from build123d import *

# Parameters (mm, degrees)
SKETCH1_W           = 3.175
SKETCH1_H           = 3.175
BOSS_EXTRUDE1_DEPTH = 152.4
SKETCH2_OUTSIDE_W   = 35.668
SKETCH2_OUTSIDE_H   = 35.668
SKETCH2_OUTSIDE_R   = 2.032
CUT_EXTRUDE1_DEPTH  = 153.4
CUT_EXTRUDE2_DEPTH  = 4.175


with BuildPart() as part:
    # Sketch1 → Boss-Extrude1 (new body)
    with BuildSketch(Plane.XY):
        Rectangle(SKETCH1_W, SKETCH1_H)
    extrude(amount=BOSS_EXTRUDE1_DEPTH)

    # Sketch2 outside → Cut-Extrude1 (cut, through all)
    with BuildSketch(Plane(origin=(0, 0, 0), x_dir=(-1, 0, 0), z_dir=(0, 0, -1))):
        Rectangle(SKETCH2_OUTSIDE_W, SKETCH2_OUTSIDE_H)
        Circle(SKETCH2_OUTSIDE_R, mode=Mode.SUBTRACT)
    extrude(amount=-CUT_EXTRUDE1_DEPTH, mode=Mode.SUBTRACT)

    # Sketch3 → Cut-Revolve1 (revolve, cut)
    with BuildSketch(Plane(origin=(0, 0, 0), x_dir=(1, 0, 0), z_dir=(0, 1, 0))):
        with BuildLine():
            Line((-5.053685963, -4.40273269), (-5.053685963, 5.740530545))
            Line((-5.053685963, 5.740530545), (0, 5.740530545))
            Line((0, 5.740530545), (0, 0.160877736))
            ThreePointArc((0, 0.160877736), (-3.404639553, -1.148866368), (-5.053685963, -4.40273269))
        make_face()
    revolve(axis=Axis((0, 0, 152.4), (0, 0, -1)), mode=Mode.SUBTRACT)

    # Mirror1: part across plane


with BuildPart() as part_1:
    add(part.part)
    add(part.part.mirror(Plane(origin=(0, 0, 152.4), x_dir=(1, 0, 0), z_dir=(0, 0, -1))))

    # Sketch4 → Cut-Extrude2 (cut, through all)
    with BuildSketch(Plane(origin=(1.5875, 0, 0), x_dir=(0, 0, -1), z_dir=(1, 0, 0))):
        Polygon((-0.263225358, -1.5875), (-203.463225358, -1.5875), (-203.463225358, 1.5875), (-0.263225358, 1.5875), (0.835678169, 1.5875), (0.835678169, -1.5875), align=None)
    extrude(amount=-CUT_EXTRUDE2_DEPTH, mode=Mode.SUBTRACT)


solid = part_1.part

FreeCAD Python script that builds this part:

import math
import FreeCAD as App
import Part
import Sketcher

V = App.Vector
Q = App.Units.Quantity

doc = App.newDocument("Part")
body = doc.addObject("PartDesign::Body", "Body")

# Sketch on XY plane
sketch1 = doc.addObject("Sketcher::SketchObject", "Sketch")
body.addObject(sketch1)
sketch1.AttachmentSupport = (doc.XY_Plane, [""])
sketch1.MapMode = "FlatFace"
sketch1.addGeometry([
    Part.LineSegment(V(-1.6, 1.6, 0), V(-1.6, -1.6, 0)),
    Part.LineSegment(V(-1.6, -1.6, 0), V(1.6, -1.6, 0)),
    Part.LineSegment(V(1.6, -1.6, 0), V(1.6, 1.6, 0)),
    Part.LineSegment(V(1.6, 1.6, 0), V(-1.6, 1.6, 0)),
], False)
sketch1.addConstraint([
    Sketcher.Constraint("Coincident", 0, 2, 1, 1),
    Sketcher.Constraint("Coincident", 1, 2, 2, 1),
    Sketcher.Constraint("Coincident", 2, 2, 3, 1),
    Sketcher.Constraint("Coincident", 3, 2, 0, 1),
    Sketcher.Constraint("Vertical", 0),
    Sketcher.Constraint("Horizontal", 1),
    Sketcher.Constraint("Vertical", 2),
    Sketcher.Constraint("Horizontal", 3),
    Sketcher.Constraint("Symmetric", 0, 2, 2, 2, -1, 1),
    Sketcher.Constraint("Equal", 3, 0),
    Sketcher.Constraint("DistanceX", 1, 1, 1, 2, Q("0.125 in")),
])
pad1 = doc.addObject("PartDesign::Pad", "Pad")
body.addObject(pad1)
pad1.Profile = sketch1
pad1.Length = Q("6 in")

# Sketch on XY plane
sketch2 = doc.addObject("Sketcher::SketchObject", "Sketch001")
body.addObject(sketch2)
sketch2.AttachmentSupport = (doc.XY_Plane, [""])
sketch2.MapMode = "FlatFace"
sketch2.addGeometry([
    Part.LineSegment(V(17.8, 17.8, 0), V(17.8, -17.8, 0)),  # 0
    Part.LineSegment(V(17.8, -17.8, 0), V(-17.8, -17.8, 0)),  # 1
    Part.LineSegment(V(-17.8, -17.8, 0), V(-17.8, 17.8, 0)),  # 2
    Part.LineSegment(V(-17.8, 17.8, 0), V(17.8, 17.8, 0)),  # 3
    Part.Circle(V(0, 0, 0), V(0, 0, 1), 2),  # 4
], False)
sketch2.addConstraint([
    Sketcher.Constraint("Coincident", 0, 2, 1, 1),
    Sketcher.Constraint("Coincident", 1, 2, 2, 1),
    Sketcher.Constraint("Coincident", 2, 2, 3, 1),
    Sketcher.Constraint("Coincident", 3, 2, 0, 1),
    Sketcher.Constraint("Vertical", 0),
    Sketcher.Constraint("Horizontal", 1),
    Sketcher.Constraint("Vertical", 2),
    Sketcher.Constraint("Horizontal", 3),
    Sketcher.Constraint("Coincident", 4, 3, -1, 1),
    Sketcher.Constraint("Symmetric", 0, 2, 2, 2, -1, 1),
    Sketcher.Constraint("Equal", 3, 0),
    Sketcher.Constraint("Diameter", 4, Q("0.16 in")),
    Sketcher.Constraint("DistanceX", 1, 2, 1, 1, 35.668),
])
pocket1 = doc.addObject("PartDesign::Pocket", "Pocket")
body.addObject(pocket1)
pocket1.Profile = sketch2
pocket1.Type = "ThroughAll"
pocket1.Reversed = True

# Sketch on XZ plane
sketch3 = doc.addObject("Sketcher::SketchObject", "Sketch002")
body.addObject(sketch3)
sketch3.AttachmentSupport = (doc.XZ_Plane, [""])
sketch3.MapMode = "FlatFace"
sketch3.addGeometry([
    Part.LineSegment(V(-5, -6, 0), V(-5, 4, 0)),
    Part.ArcOfCircle(Part.Circle(V(0, 5, 0), V(0, 0, 1), 5), math.radians(-174), math.radians(-90)),
    Part.LineSegment(V(0, 0, 0), V(0, -6, 0)),
    Part.LineSegment(V(0, -6, 0), V(-5, -6, 0)),
], False)
sketch3.addConstraint([
    Sketcher.Constraint("Coincident", 0, 2, 1, 1),
    Sketcher.Constraint("Coincident", 1, 2, 2, 1),
    Sketcher.Constraint("Coincident", 2, 2, 3, 1),
    Sketcher.Constraint("Coincident", 3, 2, 0, 1),
    Sketcher.Constraint("Vertical", 0),
    Sketcher.Constraint("Vertical", 2),
    Sketcher.Constraint("Horizontal", 3),
    Sketcher.Constraint("PointOnObject", 1, 3, -2),
    Sketcher.Constraint("PointOnObject", 1, 2, -2),
    Sketcher.Constraint("Radius", 1, Q("0.2 in")),
    Sketcher.Constraint("DistanceX", 3, 2, 3, 1, 5.053686),
    Sketcher.Constraint("DistanceY", 0, 1, 0, 2, 10.143263),
    Sketcher.Constraint("DistanceY", 2, 2, -1, 1, 5.740531),
])
groove = doc.addObject("PartDesign::Groove", "Groove")
body.addObject(groove)
groove.Profile = sketch3
groove.ReferenceAxis = (sketch3, ["V_Axis"])
groove.Angle = 360
body2 = doc.addObject("PartDesign::Body", "Body001")
doc.recompute()

body2.BaseFeature = body
doc.recompute()

mirroring = doc.addObject("Part::Mirroring", "Mirroring")
mirroring.Source = body
mirroring.Base = V(0, 0, 152.4)
mirroring.Normal = V(0, 0, -1)
body3 = doc.addObject("PartDesign::Body", "Body002")
body3.BaseFeature = mirroring
boolean = doc.addObject("PartDesign::Boolean", "Boolean")
body2.addObject(boolean)
boolean.Type = "Fuse"
boolean.addObjects([body3])
doc.recompute()

# Sketch on YZ plane
sketch4 = doc.addObject("Sketcher::SketchObject", "Sketch003")
body2.addObject(sketch4)
sketch4.AttachmentSupport = (doc.getObject("YZ_Plane001"), [""])
sketch4.MapMode = "FlatFace"
sketch4.AttachmentOffset = App.Placement(V(0, 0, 0.0625 * 25.4), App.Rotation())
sketch4.addGeometry([
    Part.LineSegment(V(-1.6, 203.5, 0), V(-1.6, -0.8, 0)),
    Part.LineSegment(V(-1.6, -0.8, 0), V(1.6, -0.8, 0)),
    Part.LineSegment(V(1.6, -0.8, 0), V(1.6, 203.5, 0)),
    Part.LineSegment(V(1.6, 203.5, 0), V(-1.6, 203.5, 0)),
], False)
sketch4.addConstraint([
    Sketcher.Constraint("Coincident", 0, 2, 1, 1),
    Sketcher.Constraint("Coincident", 1, 2, 2, 1),
    Sketcher.Constraint("Coincident", 2, 2, 3, 1),
    Sketcher.Constraint("Coincident", 3, 2, 0, 1),
    Sketcher.Constraint("Vertical", 0),
    Sketcher.Constraint("Horizontal", 1),
    Sketcher.Constraint("Vertical", 2),
    Sketcher.Constraint("Horizontal", 3),
    Sketcher.Constraint("DistanceX", 1, 1, 1, 2, Q("0.125 in")),
    Sketcher.Constraint("DistanceX", 0, 2, -1, 1, Q("0.0625 in")),
    Sketcher.Constraint("DistanceY", 0, 2, 0, 1, 204.298904),
    Sketcher.Constraint("DistanceY", 0, 2, -1, 1, 0.835678),
])
pocket2 = doc.addObject("PartDesign::Pocket", "Pocket001")
body2.addObject(pocket2)
pocket2.Profile = sketch4
pocket2.Type = "ThroughAll"
mirroring.Visibility = False

doc.recompute()
